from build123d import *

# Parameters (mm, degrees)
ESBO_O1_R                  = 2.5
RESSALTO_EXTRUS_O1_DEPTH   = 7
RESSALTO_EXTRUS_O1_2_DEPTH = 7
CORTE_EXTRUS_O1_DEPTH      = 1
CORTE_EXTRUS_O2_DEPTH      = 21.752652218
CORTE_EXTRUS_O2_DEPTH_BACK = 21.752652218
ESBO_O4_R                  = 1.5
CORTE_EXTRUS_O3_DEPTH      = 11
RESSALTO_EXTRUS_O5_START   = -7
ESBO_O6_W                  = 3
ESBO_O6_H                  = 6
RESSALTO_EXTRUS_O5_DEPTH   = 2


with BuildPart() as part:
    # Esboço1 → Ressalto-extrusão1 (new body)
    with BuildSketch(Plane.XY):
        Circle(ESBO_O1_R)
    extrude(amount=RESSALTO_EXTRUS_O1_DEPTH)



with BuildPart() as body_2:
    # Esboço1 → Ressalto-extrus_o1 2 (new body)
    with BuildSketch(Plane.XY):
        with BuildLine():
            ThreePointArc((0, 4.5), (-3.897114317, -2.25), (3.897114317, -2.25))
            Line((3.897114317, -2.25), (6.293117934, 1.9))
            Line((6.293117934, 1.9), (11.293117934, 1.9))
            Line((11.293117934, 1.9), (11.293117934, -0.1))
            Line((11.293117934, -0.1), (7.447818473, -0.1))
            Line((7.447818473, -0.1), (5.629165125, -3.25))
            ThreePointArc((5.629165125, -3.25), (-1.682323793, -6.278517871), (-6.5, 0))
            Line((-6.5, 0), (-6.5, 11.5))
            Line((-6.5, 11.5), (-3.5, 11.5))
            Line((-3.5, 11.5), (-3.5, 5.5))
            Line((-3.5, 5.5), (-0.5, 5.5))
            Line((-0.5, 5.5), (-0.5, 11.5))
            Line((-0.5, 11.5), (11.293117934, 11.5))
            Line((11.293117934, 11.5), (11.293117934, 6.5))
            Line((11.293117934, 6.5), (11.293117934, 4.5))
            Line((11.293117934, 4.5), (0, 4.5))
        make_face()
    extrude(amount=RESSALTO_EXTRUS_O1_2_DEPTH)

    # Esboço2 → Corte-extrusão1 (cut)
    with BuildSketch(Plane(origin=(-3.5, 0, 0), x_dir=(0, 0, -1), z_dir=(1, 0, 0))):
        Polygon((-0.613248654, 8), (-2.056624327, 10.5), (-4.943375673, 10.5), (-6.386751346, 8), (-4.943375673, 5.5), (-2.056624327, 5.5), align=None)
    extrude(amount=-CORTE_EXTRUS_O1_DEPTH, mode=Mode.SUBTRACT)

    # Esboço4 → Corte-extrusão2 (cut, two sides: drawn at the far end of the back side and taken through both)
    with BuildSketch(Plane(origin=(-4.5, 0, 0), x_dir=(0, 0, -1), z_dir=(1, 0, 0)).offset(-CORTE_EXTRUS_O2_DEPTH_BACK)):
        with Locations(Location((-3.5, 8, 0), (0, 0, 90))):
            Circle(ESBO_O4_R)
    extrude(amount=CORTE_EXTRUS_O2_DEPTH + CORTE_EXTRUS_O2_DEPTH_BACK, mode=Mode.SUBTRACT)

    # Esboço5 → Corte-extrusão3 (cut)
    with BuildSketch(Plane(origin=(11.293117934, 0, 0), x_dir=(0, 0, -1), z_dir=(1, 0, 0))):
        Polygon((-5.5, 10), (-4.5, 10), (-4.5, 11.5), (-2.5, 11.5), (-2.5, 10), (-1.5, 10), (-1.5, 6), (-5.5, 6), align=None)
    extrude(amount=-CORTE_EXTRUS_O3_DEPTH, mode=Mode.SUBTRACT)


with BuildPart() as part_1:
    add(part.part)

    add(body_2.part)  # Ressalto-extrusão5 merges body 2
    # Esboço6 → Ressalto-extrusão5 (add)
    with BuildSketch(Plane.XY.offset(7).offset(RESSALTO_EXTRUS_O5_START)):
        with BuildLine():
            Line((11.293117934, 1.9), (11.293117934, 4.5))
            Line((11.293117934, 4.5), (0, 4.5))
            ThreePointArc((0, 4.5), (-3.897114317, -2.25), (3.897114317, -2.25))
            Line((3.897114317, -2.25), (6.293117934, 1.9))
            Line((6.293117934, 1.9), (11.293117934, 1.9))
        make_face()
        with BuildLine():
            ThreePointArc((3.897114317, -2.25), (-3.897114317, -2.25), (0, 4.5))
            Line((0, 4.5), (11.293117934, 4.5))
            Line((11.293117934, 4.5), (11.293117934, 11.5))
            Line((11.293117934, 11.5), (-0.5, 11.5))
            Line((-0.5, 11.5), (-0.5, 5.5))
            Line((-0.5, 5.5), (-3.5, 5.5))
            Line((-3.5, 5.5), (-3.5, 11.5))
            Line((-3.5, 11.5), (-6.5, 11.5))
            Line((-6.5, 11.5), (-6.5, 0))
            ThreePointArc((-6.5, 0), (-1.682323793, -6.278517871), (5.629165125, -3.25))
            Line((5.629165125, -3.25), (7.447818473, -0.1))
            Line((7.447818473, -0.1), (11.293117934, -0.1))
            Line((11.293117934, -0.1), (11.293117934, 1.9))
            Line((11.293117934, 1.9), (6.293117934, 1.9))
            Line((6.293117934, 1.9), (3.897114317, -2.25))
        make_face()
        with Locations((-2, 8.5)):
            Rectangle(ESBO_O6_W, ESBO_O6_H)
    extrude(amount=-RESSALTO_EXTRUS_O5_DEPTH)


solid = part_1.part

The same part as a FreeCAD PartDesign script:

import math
import FreeCAD as App
import Part
import Sketcher
Q = App.Units.Quantity


def add_polygon(sketch, points):
    """Adds a closed chain of lines whose ends are joined by coincident constraints."""
    first, n = sketch.GeometryCount, len(points)
    for a, b in zip(points, points[1:] + points[:1]):
        sketch.addGeometry(Part.LineSegment(App.Vector(*a, 0), App.Vector(*b, 0)), False)
    for i in range(n):
        sketch.addConstraint(Sketcher.Constraint("Coincident", first + i, 2, first + (i + 1) % n, 1))

doc = App.newDocument("Part")
body = doc.addObject("PartDesign::Body", "Body")

sketch1 = doc.addObject("Sketcher::SketchObject", "Sketch")
body.addObject(sketch1)
sketch1.AttachmentSupport = (doc.XY_Plane, [""])
sketch1.MapMode = "FlatFace"
sketch1.addGeometry(Part.Circle(App.Vector(0, 0, 0), App.Vector(0, 0, 1), 2.5), False)
sketch1.addConstraint(Sketcher.Constraint("Coincident", 0, 3, -1, 1))
sketch1.addConstraint(Sketcher.Constraint("Diameter", 0, Q("5 mm")))
pad1 = doc.addObject("PartDesign::Pad", "Pad")
body.addObject(pad1)
pad1.Profile = sketch1
pad1.Length = 7
body2 = doc.addObject("PartDesign::Body", "Body001")

sketch2 = doc.addObject("Sketcher::SketchObject", "Sketch001")
body2.addObject(sketch2)
sketch2.AttachmentSupport = (doc.getObject("XY_Plane001"), [""])
sketch2.MapMode = "FlatFace"
sketch2.addGeometry(Part.ArcOfCircle(Part.Circle(App.Vector(0, 0, 0), App.Vector(0, 0, 1), 4.5), math.radians(90), math.radians(330)), False)
sketch2.addGeometry(Part.LineSegment(App.Vector(0, 4.5, 0), App.Vector(11.3, 4.5, 0)), False)
sketch2.addGeometry(Part.LineSegment(App.Vector(11.3, 4.5, 0), App.Vector(11.3, 11.5, 0)), False)
sketch2.addGeometry(Part.LineSegment(App.Vector(11.3, 11.5, 0), App.Vector(-0.5, 11.5, 0)), False)
sketch2.addGeometry(Part.LineSegment(App.Vector(-0.5, 11.5, 0), App.Vector(-0.5, 5.5, 0)), False)
sketch2.addGeometry(Part.LineSegment(App.Vector(-0.5, 5.5, 0), App.Vector(-3.5, 5.5, 0)), False)
sketch2.addGeometry(Part.LineSegment(App.Vector(-3.5, 5.5, 0), App.Vector(-3.5, 11.5, 0)), False)
sketch2.addGeometry(Part.LineSegment(App.Vector(-3.5, 11.5, 0), App.Vector(-6.5, 11.5, 0)), False)
sketch2.addGeometry(Part.LineSegment(App.Vector(-6.5, 11.5, 0), App.Vector(-6.5, 0, 0)), False)
sketch2.addGeometry(Part.ArcOfCircle(Part.Circle(App.Vector(0, 0, 0), App.Vector(0, 0, 1), 6.5), math.radians(180), math.radians(330)), False)
sketch2.addGeometry(Part.LineSegment(App.Vector(5.6, -3.2, 0), App.Vector(7.4, -0.1, 0)), False)
sketch2.addGeometry(Part.LineSegment(App.Vector(7.4, -0.1, 0), App.Vector(11.3, -0.1, 0)), False)
sketch2.addGeometry(Part.LineSegment(App.Vector(11.3, -0.1, 0), App.Vector(11.3, 1.9, 0)), False)
sketch2.addGeometry(Part.LineSegment(App.Vector(11.3, 1.9, 0), App.Vector(6.3, 1.9, 0)), False)
sketch2.addGeometry(Part.LineSegment(App.Vector(6.3, 1.9, 0), App.Vector(3.9, -2.2, 0)), False)
sketch2.addConstraint(Sketcher.Constraint("Tangent", 0, 1, 1, 1))
sketch2.addConstraint(Sketcher.Constraint("Coincident", 1, 2, 2, 1))
sketch2.addConstraint(Sketcher.Constraint("Coincident", 2, 2, 3, 1))
sketch2.addConstraint(Sketcher.Constraint("Coincident", 3, 2, 4, 1))
sketch2.addConstraint(Sketcher.Constraint("Coincident", 4, 2, 5, 1))
sketch2.addConstraint(Sketcher.Constraint("Coincident", 5, 2, 6, 1))
sketch2.addConstraint(Sketcher.Constraint("Coincident", 6, 2, 7, 1))
sketch2.addConstraint(Sketcher.Constraint("Coincident", 7, 2, 8, 1))
sketch2.addConstraint(Sketcher.Constraint("Tangent", 8, 2, 9, 1))
sketch2.addConstraint(Sketcher.Constraint("Tangent", 9, 2, 10, 1))
sketch2.addConstraint(Sketcher.Constraint("Coincident", 10, 2, 11, 1))
sketch2.addConstraint(Sketcher.Constraint("Coincident", 11, 2, 12, 1))
sketch2.addConstraint(Sketcher.Constraint("Coincident", 12, 2, 13, 1))
sketch2.addConstraint(Sketcher.Constraint("Coincident", 13, 2, 14, 1))
sketch2.addConstraint(Sketcher.Constraint("Tangent", 14, 2, 0, 2))
sketch2.addConstraint(Sketcher.Constraint("Horizontal", 1))
sketch2.addConstraint(Sketcher.Constraint("Vertical", 2))
sketch2.addConstraint(Sketcher.Constraint("Horizontal", 3))
sketch2.addConstraint(Sketcher.Constraint("Vertical", 4))
sketch2.addConstraint(Sketcher.Constraint("Horizontal", 5))
sketch2.addConstraint(Sketcher.Constraint("Vertical", 6))
sketch2.addConstraint(Sketcher.Constraint("Horizontal", 7))
sketch2.addConstraint(Sketcher.Constraint("Vertical", 8))
sketch2.addConstraint(Sketcher.Constraint("Horizontal", 11))
sketch2.addConstraint(Sketcher.Constraint("Vertical", 12))
sketch2.addConstraint(Sketcher.Constraint("Horizontal", 13))
sketch2.addConstraint(Sketcher.Constraint("Coincident", 0, 3, -1, 1))
sketch2.addConstraint(Sketcher.Constraint("Coincident", 9, 3, -1, 1))
sketch2.addConstraint(Sketcher.Constraint("Parallel", 10, 14))
sketch2.addConstraint(Sketcher.Constraint("Horizontal", 3, 2, 6, 2))
sketch2.addConstraint(Sketcher.Constraint("Vertical", 2, 2, 11, 2))
sketch2.addConstraint(Sketcher.Constraint("Equal", 5, 7))
sketch2.addConstraint(Sketcher.Constraint("Radius", 0, Q("4.5 mm")))
sketch2.addConstraint(Sketcher.Constraint("Radius", 9, Q("6.5 mm")))
sketch2.addConstraint(Sketcher.Constraint("DistanceX", 5, 2, 5, 1, Q("3 mm")))
sketch2.addConstraint(Sketcher.Constraint("DistanceX", 13, 2, 13, 1, Q("5 mm")))
sketch2.addConstraint(Sketcher.Constraint("DistanceY", 2, 1, 2, 2, Q("7 mm")))
sketch2.addConstraint(Sketcher.Constraint("DistanceY", 4, 2, 4, 1, Q("6 mm")))
sketch2.addConstraint(Sketcher.Constraint("DistanceY", 12, 1, 12, 2, Q("2 mm")))
sketch2.addConstraint(Sketcher.Constraint("Angle", 10, Q("60 deg")))
sketch2.addConstraint(Sketcher.Constraint("DistanceY", 10, 2, -1, 1, Q("0.1 mm")))
pad2 = doc.addObject("PartDesign::Pad", "Pad001")
body2.addObject(pad2)
pad2.Profile = sketch2
pad2.Length = 7

sketch3 = doc.addObject("Sketcher::SketchObject", "Sketch002")
body2.addObject(sketch3)
sketch3.AttachmentSupport = (doc.getObject("YZ_Plane001"), [""])
sketch3.MapMode = "FlatFace"
sketch3.AttachmentOffset = App.Placement(App.Vector(0, 0, -3.5), App.Rotation())
add_polygon(sketch3, [(8, 0.6), (10.5, 2.1), (10.5, 4.9), (8, 6.4), (5.5, 4.9), (5.5, 2.1)])
sketch3.addConstraint(Sketcher.Constraint("Vertical", 1))
sketch3.addConstraint(Sketcher.Constraint("Vertical", 4))
sketch3.addConstraint(Sketcher.Constraint("Parallel", 0, 3))
sketch3.addConstraint(Sketcher.Constraint("Parallel", 2, 5))
sketch3.addConstraint(Sketcher.Constraint("Horizontal", 1, 2, 3, 2))
sketch3.addConstraint(Sketcher.Constraint("Horizontal", 0, 2, 4, 2))
sketch3.addConstraint(Sketcher.Constraint("Vertical", 2, 2, 5, 2))
sketch3.addConstraint(Sketcher.Constraint("Angle", 0, Q("30 deg")))
sketch3.addConstraint(Sketcher.Constraint("DistanceX", -1, 1, 2, 2, Q("8 mm")))
sketch3.addConstraint(Sketcher.Constraint("DistanceX", 3, 2, 1, 2, Q("5 mm")))
sketch3.addConstraint(Sketcher.Constraint("DistanceY", 1, 1, 1, 2, Q("2.886751 mm")))
sketch3.addConstraint(Sketcher.Constraint("DistanceY", -1, 1, 2, 2, Q("6.386751 mm")))
pocket1 = doc.addObject("PartDesign::Pocket", "Pocket")
body2.addObject(pocket1)
pocket1.Profile = sketch3
pocket1.Length = 1

sketch4 = doc.addObject("Sketcher::SketchObject", "Sketch003")
body2.addObject(sketch4)
sketch4.AttachmentSupport = (doc.getObject("YZ_Plane001"), [""])
sketch4.MapMode = "FlatFace"
sketch4.AttachmentOffset = App.Placement(App.Vector(0, 0, -4.5), App.Rotation())
sketch4.addGeometry(Part.Circle(App.Vector(8, 3.5, 0), App.Vector(0, 0, 1), 1.5), False)
sketch4.addConstraint(Sketcher.Constraint("Diameter", 0, Q("3 mm")))
sketch4.addConstraint(Sketcher.Constraint("DistanceX", -1, 1, 0, 3, Q("8 mm")))
sketch4.addConstraint(Sketcher.Constraint("DistanceY", -1, 1, 0, 3, Q("3.5 mm")))
pocket2 = doc.addObject("PartDesign::Pocket", "Pocket001")
body2.addObject(pocket2)
pocket2.Profile = sketch4
pocket2.Type = "ThroughAll"
pocket2.Midplane = True

sketch5 = doc.addObject("Sketcher::SketchObject", "Sketch004")
body2.addObject(sketch5)
sketch5.AttachmentSupport = (doc.getObject("YZ_Plane001"), [""])
sketch5.MapMode = "FlatFace"
sketch5.AttachmentOffset = App.Placement(App.Vector(0, 0, 11.293118), App.Rotation())
add_polygon(sketch5, [(10, 4.5), (10, 5.5), (6, 5.5), (6, 1.5), (10, 1.5), (10, 2.5), (11.5, 2.5), (11.5, 4.5)])
sketch5.addConstraint(Sketcher.Constraint("Vertical", 0))
sketch5.addConstraint(Sketcher.Constraint("Horizontal", 1))
sketch5.addConstraint(Sketcher.Constraint("Vertical", 2))
sketch5.addConstraint(Sketcher.Constraint("Horizontal", 3))
sketch5.addConstraint(Sketcher.Constraint("Vertical", 4))
sketch5.addConstraint(Sketcher.Constraint("Horizontal", 5))
sketch5.addConstraint(Sketcher.Constraint("Vertical", 6))
sketch5.addConstraint(Sketcher.Constraint("Horizontal", 7))
sketch5.addConstraint(Sketcher.Constraint("Vertical", 0, 2, 3, 2))
sketch5.addConstraint(Sketcher.Constraint("Equal", 3, 2))
sketch5.addConstraint(Sketcher.Constraint("Equal", 0, 4))
sketch5.addConstraint(Sketcher.Constraint("DistanceX", 1, 2, 1, 1, Q("4 mm")))
sketch5.addConstraint(Sketcher.Constraint("DistanceY", 0, 1, 0, 2, Q("1 mm")))
sketch5.addConstraint(Sketcher.Constraint("DistanceX", 5, 1, 5, 2, Q("1.5 mm")))
sketch5.addConstraint(Sketcher.Constraint("DistanceX", -1, 1, 0, 2, Q("10 mm")))
sketch5.addConstraint(Sketcher.Constraint("DistanceY", -1, 1, 0, 2, Q("5.5 mm")))
pocket3 = doc.addObject("PartDesign::Pocket", "Pocket002")
body2.addObject(pocket3)
pocket3.Profile = sketch5
pocket3.Length = 11
body.AllowCompound = True
doc.recompute()

boolean = doc.addObject("PartDesign::Boolean", "Boolean")
body.addObject(boolean)
boolean.Type = "Fuse"
boolean.addObjects([body2])

sketch6 = doc.addObject("Sketcher::SketchObject", "Sketch005")
body.addObject(sketch6)
sketch6.AttachmentSupport = (doc.XY_Plane, [""])
sketch6.MapMode = "FlatFace"
sketch6.addGeometry(Part.LineSegment(App.Vector(11.3, 11.5, 0), App.Vector(-6.5, 11.5, 0)), False)
sketch6.addGeometry(Part.LineSegment(App.Vector(-6.5, 11.5, 0), App.Vector(-6.5, 0, 0)), False)
sketch6.addGeometry(Part.ArcOfCircle(Part.Circle(App.Vector(0, 0, 0), App.Vector(0, 0, 1), 6.5), math.radians(180), math.radians(330)), False)
sketch6.addGeometry(Part.LineSegment(App.Vector(5.6, -3.2, 0), App.Vector(7.4, -0.1, 0)), False)
sketch6.addGeometry(Part.LineSegment(App.Vector(7.4, -0.1, 0), App.Vector(11.3, -0.1, 0)), False)
sketch6.addGeometry(Part.LineSegment(App.Vector(11.3, -0.1, 0), App.Vector(11.3, 11.5, 0)), False)
sketch6.addConstraint(Sketcher.Constraint("Coincident", 0, 2, 1, 1))
sketch6.addConstraint(Sketcher.Constraint("Tangent", 1, 2, 2, 1))
sketch6.addConstraint(Sketcher.Constraint("Tangent", 2, 2, 3, 1))
sketch6.addConstraint(Sketcher.Constraint("Coincident", 3, 2, 4, 1))
sketch6.addConstraint(Sketcher.Constraint("Coincident", 4, 2, 5, 1))
sketch6.addConstraint(Sketcher.Constraint("Coincident", 5, 2, 0, 1))
sketch6.addConstraint(Sketcher.Constraint("Horizontal", 0))
sketch6.addConstraint(Sketcher.Constraint("Vertical", 1))
sketch6.addConstraint(Sketcher.Constraint("Horizontal", 4))
sketch6.addConstraint(Sketcher.Constraint("Vertical", 5))
sketch6.addConstraint(Sketcher.Constraint("Coincident", 2, 3, -1, 1))
sketch6.addConstraint(Sketcher.Constraint("Radius", 2, Q("6.5 mm")))
sketch6.addConstraint(Sketcher.Constraint("Angle", 3, Q("60 deg")))
sketch6.addConstraint(Sketcher.Constraint("DistanceY", 1, 2, 1, 1, Q("11.5 mm")))
sketch6.addConstraint(Sketcher.Constraint("DistanceY", 5, 1, 5, 2, Q("11.6 mm")))
sketch6.addConstraint(Sketcher.Constraint("DistanceX", 4, 1, 4, 2, Q("3.845299 mm")))
pad3 = doc.addObject("PartDesign::Pad", "Pad002")
body.addObject(pad3)
pad3.Profile = sketch6
pad3.Length = 2
pad3.Reversed = True

doc.recompute()
